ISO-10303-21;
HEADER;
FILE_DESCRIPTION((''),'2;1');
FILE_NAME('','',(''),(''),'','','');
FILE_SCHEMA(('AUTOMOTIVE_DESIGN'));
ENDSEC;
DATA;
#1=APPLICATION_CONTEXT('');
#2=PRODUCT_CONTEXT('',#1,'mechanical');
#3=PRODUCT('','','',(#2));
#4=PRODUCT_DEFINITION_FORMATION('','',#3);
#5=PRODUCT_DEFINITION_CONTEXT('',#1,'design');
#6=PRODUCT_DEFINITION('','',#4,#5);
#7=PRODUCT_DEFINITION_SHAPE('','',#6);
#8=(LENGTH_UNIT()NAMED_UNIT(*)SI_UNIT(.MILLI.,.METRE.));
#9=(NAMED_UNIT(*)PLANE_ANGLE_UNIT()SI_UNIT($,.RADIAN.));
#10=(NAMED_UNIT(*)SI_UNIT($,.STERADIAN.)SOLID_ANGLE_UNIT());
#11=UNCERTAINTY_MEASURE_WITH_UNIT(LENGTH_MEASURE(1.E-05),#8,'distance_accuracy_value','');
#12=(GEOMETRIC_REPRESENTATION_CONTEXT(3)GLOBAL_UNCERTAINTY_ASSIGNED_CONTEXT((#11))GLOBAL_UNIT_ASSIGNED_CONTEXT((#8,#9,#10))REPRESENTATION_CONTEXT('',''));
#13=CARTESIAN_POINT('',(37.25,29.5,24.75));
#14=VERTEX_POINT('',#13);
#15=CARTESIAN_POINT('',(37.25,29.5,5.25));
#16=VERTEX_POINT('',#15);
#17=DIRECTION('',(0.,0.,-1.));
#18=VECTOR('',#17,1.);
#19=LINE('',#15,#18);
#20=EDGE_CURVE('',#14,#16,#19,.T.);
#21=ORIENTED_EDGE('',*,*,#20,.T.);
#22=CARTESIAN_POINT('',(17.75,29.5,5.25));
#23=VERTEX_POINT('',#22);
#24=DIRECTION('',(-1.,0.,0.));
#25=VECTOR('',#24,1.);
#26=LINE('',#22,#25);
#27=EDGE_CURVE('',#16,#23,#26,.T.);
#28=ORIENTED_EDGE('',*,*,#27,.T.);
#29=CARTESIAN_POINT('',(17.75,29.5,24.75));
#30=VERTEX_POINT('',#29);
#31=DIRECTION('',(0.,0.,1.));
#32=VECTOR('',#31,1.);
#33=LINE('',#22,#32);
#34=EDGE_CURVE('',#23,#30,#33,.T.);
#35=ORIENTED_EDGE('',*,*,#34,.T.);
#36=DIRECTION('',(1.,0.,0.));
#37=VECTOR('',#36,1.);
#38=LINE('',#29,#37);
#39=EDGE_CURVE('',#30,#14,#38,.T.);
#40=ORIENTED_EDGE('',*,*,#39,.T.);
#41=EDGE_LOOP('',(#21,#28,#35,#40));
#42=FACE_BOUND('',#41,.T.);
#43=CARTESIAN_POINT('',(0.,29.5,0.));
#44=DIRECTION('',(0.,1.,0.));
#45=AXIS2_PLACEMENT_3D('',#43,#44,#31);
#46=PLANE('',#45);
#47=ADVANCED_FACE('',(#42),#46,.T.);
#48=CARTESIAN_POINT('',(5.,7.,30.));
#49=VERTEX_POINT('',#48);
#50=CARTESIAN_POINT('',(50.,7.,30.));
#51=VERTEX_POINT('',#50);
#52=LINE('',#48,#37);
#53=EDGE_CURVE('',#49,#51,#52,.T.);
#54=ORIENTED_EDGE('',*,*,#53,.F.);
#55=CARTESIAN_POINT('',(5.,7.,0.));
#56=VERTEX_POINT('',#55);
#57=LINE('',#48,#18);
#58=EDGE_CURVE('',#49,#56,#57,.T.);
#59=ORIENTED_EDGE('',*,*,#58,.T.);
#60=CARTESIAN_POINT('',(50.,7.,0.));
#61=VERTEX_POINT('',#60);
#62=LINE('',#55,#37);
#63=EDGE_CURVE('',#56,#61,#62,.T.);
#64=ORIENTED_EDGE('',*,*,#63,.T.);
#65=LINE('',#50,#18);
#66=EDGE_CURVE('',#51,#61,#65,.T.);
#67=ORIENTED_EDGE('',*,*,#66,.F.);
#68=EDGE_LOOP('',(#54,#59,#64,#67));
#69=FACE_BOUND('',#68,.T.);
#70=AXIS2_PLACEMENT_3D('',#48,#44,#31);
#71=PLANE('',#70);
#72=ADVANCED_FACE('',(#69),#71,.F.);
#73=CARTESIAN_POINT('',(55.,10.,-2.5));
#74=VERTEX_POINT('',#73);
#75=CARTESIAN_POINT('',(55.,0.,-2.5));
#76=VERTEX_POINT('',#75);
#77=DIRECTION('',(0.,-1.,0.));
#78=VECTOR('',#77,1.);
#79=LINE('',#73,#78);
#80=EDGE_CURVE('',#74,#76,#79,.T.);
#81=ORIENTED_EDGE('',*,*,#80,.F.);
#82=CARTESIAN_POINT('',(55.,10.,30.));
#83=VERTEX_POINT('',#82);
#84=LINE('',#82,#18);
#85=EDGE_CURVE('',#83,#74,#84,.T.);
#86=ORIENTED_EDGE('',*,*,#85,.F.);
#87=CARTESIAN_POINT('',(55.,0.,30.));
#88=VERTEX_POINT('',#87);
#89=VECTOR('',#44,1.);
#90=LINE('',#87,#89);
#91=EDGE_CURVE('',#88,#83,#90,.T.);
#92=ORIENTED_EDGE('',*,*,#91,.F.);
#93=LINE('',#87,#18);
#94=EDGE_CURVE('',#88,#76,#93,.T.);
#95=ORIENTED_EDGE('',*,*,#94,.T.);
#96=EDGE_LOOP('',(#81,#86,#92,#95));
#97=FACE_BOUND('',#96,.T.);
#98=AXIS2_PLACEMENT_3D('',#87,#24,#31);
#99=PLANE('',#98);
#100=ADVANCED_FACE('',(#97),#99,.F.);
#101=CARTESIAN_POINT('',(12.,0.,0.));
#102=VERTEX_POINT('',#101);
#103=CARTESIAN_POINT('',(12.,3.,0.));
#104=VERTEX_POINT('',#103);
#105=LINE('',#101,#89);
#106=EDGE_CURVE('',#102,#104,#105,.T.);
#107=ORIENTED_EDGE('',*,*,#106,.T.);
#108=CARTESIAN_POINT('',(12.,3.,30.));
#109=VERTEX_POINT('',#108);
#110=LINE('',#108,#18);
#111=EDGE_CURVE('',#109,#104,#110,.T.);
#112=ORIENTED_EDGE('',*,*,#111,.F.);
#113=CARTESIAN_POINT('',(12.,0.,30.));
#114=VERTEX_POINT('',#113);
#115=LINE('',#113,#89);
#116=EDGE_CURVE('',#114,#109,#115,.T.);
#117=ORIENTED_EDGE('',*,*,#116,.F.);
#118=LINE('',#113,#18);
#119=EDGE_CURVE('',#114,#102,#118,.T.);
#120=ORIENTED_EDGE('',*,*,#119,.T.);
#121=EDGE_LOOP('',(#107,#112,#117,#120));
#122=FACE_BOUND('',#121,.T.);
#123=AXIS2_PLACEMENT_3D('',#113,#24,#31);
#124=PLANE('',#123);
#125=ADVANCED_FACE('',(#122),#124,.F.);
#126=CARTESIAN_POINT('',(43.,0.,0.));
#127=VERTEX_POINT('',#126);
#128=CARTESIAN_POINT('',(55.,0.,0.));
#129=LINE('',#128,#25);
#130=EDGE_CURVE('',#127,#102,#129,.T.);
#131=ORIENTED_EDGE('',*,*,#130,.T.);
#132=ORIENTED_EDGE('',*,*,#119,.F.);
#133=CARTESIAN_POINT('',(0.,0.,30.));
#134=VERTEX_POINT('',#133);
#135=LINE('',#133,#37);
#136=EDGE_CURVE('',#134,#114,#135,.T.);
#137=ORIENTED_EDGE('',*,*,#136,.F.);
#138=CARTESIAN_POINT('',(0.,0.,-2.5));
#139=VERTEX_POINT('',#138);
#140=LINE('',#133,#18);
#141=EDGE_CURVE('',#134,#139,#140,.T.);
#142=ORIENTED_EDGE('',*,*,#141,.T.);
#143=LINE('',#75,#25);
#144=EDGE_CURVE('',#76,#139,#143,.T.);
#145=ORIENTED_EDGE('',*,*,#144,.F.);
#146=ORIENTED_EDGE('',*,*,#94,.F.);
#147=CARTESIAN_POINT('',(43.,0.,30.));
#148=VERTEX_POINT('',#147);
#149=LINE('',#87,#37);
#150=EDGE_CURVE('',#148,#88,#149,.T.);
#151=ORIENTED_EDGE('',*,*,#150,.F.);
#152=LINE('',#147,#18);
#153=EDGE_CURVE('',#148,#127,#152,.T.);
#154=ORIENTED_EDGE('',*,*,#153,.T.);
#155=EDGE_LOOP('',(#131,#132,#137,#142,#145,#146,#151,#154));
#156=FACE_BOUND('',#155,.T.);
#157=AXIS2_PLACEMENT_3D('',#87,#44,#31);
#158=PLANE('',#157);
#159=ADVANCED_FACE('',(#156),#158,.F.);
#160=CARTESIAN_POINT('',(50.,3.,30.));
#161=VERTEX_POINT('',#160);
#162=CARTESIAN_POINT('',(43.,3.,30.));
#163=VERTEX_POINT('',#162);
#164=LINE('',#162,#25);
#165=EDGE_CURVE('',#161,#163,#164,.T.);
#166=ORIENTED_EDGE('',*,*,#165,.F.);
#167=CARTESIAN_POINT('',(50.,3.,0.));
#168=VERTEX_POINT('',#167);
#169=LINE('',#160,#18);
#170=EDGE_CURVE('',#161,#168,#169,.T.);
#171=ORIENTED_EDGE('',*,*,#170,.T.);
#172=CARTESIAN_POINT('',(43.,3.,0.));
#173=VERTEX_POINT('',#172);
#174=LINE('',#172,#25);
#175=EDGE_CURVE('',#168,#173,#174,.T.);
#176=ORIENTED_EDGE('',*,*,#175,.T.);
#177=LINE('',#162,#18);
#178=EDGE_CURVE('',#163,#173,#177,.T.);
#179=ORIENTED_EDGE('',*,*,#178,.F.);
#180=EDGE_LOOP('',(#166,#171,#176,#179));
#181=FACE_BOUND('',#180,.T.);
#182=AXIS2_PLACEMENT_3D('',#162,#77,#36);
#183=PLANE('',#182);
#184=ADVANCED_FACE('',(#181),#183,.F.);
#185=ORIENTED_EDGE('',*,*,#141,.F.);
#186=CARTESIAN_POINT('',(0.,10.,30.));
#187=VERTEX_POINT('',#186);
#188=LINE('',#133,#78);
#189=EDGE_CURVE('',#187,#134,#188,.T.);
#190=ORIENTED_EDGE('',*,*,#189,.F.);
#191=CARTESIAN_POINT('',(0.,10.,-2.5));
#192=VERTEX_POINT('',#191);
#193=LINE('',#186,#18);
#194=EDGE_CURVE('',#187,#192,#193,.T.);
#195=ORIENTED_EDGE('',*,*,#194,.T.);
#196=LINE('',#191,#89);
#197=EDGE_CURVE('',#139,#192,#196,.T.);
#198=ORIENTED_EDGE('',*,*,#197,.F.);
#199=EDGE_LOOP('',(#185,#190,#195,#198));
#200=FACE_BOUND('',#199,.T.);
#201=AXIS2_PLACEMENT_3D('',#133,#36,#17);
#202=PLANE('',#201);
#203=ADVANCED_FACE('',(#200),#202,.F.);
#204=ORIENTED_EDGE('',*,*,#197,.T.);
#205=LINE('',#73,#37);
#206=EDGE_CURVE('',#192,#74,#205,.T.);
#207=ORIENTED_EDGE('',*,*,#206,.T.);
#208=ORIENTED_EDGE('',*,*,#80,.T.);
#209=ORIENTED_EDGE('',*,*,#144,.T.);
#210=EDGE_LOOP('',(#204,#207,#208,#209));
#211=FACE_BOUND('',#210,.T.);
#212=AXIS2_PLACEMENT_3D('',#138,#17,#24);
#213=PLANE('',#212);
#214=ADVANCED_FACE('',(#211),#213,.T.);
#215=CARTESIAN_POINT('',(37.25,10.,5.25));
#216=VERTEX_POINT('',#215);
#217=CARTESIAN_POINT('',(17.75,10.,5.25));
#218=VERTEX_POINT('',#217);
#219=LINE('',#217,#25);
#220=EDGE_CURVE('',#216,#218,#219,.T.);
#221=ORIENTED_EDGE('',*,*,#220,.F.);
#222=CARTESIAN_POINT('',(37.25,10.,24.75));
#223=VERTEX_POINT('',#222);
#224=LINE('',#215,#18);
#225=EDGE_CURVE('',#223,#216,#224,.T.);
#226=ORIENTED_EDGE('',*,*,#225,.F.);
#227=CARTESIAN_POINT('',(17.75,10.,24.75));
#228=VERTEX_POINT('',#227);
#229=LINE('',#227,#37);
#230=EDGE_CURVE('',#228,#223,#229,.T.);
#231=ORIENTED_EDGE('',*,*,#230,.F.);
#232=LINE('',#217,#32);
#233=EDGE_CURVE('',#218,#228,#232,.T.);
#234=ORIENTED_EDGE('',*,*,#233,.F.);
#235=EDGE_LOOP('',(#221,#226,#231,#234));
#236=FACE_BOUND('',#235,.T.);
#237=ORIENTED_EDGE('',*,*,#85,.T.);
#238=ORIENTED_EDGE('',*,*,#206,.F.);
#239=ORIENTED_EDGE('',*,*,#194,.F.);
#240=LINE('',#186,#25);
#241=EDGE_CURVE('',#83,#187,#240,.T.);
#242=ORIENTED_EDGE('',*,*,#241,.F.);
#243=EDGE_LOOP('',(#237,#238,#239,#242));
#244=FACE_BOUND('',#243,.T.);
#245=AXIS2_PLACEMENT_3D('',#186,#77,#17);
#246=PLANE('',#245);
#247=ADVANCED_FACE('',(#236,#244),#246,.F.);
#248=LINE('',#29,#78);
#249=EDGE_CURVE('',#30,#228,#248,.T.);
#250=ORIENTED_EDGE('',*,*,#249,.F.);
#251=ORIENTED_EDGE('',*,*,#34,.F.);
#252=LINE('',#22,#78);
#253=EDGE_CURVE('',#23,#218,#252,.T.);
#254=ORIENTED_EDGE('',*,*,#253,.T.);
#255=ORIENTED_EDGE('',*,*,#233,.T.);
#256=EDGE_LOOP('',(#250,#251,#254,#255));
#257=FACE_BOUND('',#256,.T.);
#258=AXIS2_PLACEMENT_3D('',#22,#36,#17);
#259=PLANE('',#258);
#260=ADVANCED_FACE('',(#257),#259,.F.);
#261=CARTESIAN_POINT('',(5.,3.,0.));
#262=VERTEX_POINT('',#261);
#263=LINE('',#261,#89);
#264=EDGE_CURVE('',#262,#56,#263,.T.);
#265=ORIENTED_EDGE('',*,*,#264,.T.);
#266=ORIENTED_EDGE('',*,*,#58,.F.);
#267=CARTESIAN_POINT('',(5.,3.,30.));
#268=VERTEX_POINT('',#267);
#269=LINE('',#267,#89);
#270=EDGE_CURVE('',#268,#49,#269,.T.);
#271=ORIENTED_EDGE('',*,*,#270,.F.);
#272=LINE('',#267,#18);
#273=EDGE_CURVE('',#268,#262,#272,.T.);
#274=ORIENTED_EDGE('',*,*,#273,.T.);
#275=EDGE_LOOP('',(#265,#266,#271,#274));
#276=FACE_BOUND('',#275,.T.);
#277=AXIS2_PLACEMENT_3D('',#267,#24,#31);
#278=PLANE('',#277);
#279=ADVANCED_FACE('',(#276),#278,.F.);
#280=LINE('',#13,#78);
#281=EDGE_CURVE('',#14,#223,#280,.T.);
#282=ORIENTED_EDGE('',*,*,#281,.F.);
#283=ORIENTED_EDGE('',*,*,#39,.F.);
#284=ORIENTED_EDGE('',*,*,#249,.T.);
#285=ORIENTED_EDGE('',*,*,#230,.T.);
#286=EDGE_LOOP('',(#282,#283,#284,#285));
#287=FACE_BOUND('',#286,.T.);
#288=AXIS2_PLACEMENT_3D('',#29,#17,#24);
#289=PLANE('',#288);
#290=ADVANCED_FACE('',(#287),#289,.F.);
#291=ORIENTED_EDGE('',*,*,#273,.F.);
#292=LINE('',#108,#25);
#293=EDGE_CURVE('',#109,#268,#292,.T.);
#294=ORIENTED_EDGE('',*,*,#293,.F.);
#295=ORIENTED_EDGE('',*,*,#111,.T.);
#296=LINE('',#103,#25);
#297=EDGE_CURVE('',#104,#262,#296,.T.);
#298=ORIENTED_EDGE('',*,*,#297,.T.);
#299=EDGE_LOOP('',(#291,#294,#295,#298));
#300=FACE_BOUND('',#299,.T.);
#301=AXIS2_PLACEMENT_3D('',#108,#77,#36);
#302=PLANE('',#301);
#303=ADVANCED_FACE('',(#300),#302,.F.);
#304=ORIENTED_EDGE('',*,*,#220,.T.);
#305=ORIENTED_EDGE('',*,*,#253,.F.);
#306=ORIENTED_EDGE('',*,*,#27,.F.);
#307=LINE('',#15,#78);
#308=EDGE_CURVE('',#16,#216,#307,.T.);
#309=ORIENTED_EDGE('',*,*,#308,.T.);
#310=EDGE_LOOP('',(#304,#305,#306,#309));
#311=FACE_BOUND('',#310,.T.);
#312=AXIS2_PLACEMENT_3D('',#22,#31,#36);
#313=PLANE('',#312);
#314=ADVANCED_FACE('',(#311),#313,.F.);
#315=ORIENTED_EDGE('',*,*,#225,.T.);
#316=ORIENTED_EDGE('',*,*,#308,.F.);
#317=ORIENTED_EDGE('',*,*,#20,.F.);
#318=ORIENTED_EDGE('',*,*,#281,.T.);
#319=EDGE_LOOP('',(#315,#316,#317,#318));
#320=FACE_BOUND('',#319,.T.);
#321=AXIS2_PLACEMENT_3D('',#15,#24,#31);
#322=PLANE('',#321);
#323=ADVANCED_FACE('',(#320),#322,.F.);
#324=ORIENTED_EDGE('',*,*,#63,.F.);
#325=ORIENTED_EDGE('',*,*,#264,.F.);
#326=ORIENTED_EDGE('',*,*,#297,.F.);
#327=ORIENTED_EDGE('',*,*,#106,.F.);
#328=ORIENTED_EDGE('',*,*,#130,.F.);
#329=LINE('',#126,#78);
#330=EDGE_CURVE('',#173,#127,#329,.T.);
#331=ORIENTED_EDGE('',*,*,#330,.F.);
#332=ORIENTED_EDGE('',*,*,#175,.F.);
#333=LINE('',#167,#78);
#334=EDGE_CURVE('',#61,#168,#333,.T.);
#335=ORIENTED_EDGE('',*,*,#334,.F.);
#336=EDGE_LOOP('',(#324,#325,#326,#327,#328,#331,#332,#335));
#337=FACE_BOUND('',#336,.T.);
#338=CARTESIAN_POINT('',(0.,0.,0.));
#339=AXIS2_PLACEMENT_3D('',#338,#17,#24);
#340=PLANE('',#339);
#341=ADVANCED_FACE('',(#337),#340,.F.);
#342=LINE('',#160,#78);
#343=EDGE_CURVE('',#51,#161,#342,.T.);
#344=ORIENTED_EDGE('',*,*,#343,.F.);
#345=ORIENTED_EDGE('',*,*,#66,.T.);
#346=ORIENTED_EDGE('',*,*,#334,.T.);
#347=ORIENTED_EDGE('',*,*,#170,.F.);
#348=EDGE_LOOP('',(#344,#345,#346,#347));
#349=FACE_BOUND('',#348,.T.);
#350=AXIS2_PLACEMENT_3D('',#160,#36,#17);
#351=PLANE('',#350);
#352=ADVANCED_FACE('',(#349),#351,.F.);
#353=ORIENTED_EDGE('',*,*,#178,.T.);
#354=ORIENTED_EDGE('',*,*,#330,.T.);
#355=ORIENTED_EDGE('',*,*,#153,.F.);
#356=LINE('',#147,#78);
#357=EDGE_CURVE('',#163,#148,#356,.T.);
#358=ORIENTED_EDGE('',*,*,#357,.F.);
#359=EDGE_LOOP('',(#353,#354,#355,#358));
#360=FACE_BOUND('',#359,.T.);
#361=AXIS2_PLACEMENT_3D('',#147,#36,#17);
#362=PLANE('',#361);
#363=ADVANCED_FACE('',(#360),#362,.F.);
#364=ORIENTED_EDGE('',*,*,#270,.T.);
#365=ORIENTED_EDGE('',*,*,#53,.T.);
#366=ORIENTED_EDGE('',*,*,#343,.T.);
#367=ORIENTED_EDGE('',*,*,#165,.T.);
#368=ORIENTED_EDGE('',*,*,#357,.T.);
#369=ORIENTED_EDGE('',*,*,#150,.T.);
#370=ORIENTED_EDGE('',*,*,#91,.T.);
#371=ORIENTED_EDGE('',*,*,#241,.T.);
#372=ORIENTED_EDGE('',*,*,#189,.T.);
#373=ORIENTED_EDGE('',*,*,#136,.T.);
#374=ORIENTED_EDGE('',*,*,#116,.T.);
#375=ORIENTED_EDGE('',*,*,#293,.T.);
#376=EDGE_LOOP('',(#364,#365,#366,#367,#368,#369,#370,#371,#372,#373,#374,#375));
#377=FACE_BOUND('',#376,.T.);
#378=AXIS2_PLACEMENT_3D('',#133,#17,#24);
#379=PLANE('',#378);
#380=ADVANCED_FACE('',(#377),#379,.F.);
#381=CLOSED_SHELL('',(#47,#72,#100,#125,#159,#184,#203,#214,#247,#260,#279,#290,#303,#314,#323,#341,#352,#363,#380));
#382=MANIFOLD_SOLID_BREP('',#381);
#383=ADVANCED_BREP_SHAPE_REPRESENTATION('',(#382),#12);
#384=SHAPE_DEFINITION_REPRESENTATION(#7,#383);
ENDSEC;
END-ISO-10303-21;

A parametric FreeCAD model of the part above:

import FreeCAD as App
import Part
import Sketcher
from FreeCAD import Vector
Q = App.Units.Quantity


def add_polygon(sketch, points):
    """Adds a closed chain of lines whose ends are joined by coincident constraints."""
    first, n = sketch.GeometryCount, len(points)
    for a, b in zip(points, points[1:] + points[:1]):
        sketch.addGeometry(Part.LineSegment(App.Vector(*a, 0), App.Vector(*b, 0)), False)
    for i in range(n):
        sketch.addConstraint(Sketcher.Constraint("Coincident", first + i, 2, first + (i + 1) % n, 1))

doc = App.newDocument("Part")
body = doc.addObject("PartDesign::Body", "Body")

# Sketch on XY plane
sketch1 = body.newObject("Sketcher::SketchObject", "Sketch")
sketch1.AttachmentSupport = (doc.getObject("XY_Plane"), [""])
sketch1.MapMode = "FlatFace"
add_polygon(sketch1, [(12, 0), (12, 3), (5, 3), (5, 7), (50, 7), (50, 3), (43, 3), (43, 0), (55, 0), (55, 10), (0, 10), (0, 0)])  # lines 0-11
sketch1.addConstraint([
    Sketcher.Constraint("Vertical", 0),
    Sketcher.Constraint("Horizontal", 1),
    Sketcher.Constraint("Vertical", 2),
    Sketcher.Constraint("Horizontal", 3),
    Sketcher.Constraint("Vertical", 4),
    Sketcher.Constraint("Horizontal", 5),
    Sketcher.Constraint("Vertical", 6),
    Sketcher.Constraint("Horizontal", 7),
    Sketcher.Constraint("Vertical", 8),
    Sketcher.Constraint("Horizontal", 9),
    Sketcher.Constraint("Vertical", 10),
    Sketcher.Constraint("Horizontal", 11),
    Sketcher.Constraint("Coincident", 10, 2, -1, 1),
    Sketcher.Constraint("PointOnObject", 6, 2, -1),
    Sketcher.Constraint("Horizontal", 1, 2, 4, 2),
    Sketcher.Constraint("Equal", 1, 5),
    Sketcher.Constraint("Equal", 7, 11),
    Sketcher.Constraint("DistanceX", 1, 2, 1, 1, Q("7 mm")),
    Sketcher.Constraint("DistanceX", 3, 1, 3, 2, Q("45 mm")),
    Sketcher.Constraint("DistanceX", 7, 1, 7, 2, Q("12 mm")),
    Sketcher.Constraint("DistanceY", 0, 1, 0, 2, Q("3 mm")),
    Sketcher.Constraint("DistanceY", 2, 1, 2, 2, Q("4 mm")),
    Sketcher.Constraint("DistanceY", 8, 1, 8, 2, Q("10 mm")),
])
pad1 = body.newObject("PartDesign::Pad", "Pad")
pad1.Profile = sketch1
pad1.Length = 30

# Sketch on XZ plane
sketch2 = body.newObject("Sketcher::SketchObject", "Sketch001")
sketch2.AttachmentSupport = (doc.getObject("XZ_Plane"), [""])
sketch2.MapMode = "FlatFace"
sketch2.AttachmentOffset = App.Placement(Vector(0, 0, -10), App.Rotation())
add_polygon(sketch2, [(18, 5), (18, 25), (37, 25), (37, 5)])  # lines 0-3
sketch2.addConstraint([
    Sketcher.Constraint("Vertical", 0),
    Sketcher.Constraint("Horizontal", 1),
    Sketcher.Constraint("Vertical", 2),
    Sketcher.Constraint("Horizontal", 3),
    Sketcher.Constraint("Equal", 3, 0),
    Sketcher.Constraint("DistanceX", 1, 1, 1, 2, Q("19.5 mm")),
    Sketcher.Constraint("DistanceX", -1, 1, 0, 2, Q("17.75 mm")),
    Sketcher.Constraint("DistanceY", -1, 1, 0, 2, Q("24.75 mm")),
])
pad2 = body.newObject("PartDesign::Pad", "Pad001")
pad2.Profile = sketch2
pad2.Length = 19.5
pad2.Reversed = True

# Sketch on XY plane
sketch3 = body.newObject("Sketcher::SketchObject", "Sketch002")
sketch3.AttachmentSupport = (doc.getObject("XY_Plane"), [""])
sketch3.MapMode = "FlatFace"
add_polygon(sketch3, [(55, 10), (55, 0), (0, 0), (0, 10)])  # lines 0-3
sketch3.addConstraint([
    Sketcher.Constraint("Vertical", 0),
    Sketcher.Constraint("Horizontal", 1),
    Sketcher.Constraint("Vertical", 2),
    Sketcher.Constraint("Horizontal", 3),
    Sketcher.Constraint("Coincident", 1, 2, -1, 1),
    Sketcher.Constraint("DistanceX", 1, 2, 1, 1, Q("55 mm")),
    Sketcher.Constraint("DistanceY", 0, 2, 0, 1, Q("10 mm")),
])
pad3 = body.newObject("PartDesign::Pad", "Pad002")
pad3.Profile = sketch3
pad3.Length = 2.5
pad3.Reversed = True

doc.recompute()
